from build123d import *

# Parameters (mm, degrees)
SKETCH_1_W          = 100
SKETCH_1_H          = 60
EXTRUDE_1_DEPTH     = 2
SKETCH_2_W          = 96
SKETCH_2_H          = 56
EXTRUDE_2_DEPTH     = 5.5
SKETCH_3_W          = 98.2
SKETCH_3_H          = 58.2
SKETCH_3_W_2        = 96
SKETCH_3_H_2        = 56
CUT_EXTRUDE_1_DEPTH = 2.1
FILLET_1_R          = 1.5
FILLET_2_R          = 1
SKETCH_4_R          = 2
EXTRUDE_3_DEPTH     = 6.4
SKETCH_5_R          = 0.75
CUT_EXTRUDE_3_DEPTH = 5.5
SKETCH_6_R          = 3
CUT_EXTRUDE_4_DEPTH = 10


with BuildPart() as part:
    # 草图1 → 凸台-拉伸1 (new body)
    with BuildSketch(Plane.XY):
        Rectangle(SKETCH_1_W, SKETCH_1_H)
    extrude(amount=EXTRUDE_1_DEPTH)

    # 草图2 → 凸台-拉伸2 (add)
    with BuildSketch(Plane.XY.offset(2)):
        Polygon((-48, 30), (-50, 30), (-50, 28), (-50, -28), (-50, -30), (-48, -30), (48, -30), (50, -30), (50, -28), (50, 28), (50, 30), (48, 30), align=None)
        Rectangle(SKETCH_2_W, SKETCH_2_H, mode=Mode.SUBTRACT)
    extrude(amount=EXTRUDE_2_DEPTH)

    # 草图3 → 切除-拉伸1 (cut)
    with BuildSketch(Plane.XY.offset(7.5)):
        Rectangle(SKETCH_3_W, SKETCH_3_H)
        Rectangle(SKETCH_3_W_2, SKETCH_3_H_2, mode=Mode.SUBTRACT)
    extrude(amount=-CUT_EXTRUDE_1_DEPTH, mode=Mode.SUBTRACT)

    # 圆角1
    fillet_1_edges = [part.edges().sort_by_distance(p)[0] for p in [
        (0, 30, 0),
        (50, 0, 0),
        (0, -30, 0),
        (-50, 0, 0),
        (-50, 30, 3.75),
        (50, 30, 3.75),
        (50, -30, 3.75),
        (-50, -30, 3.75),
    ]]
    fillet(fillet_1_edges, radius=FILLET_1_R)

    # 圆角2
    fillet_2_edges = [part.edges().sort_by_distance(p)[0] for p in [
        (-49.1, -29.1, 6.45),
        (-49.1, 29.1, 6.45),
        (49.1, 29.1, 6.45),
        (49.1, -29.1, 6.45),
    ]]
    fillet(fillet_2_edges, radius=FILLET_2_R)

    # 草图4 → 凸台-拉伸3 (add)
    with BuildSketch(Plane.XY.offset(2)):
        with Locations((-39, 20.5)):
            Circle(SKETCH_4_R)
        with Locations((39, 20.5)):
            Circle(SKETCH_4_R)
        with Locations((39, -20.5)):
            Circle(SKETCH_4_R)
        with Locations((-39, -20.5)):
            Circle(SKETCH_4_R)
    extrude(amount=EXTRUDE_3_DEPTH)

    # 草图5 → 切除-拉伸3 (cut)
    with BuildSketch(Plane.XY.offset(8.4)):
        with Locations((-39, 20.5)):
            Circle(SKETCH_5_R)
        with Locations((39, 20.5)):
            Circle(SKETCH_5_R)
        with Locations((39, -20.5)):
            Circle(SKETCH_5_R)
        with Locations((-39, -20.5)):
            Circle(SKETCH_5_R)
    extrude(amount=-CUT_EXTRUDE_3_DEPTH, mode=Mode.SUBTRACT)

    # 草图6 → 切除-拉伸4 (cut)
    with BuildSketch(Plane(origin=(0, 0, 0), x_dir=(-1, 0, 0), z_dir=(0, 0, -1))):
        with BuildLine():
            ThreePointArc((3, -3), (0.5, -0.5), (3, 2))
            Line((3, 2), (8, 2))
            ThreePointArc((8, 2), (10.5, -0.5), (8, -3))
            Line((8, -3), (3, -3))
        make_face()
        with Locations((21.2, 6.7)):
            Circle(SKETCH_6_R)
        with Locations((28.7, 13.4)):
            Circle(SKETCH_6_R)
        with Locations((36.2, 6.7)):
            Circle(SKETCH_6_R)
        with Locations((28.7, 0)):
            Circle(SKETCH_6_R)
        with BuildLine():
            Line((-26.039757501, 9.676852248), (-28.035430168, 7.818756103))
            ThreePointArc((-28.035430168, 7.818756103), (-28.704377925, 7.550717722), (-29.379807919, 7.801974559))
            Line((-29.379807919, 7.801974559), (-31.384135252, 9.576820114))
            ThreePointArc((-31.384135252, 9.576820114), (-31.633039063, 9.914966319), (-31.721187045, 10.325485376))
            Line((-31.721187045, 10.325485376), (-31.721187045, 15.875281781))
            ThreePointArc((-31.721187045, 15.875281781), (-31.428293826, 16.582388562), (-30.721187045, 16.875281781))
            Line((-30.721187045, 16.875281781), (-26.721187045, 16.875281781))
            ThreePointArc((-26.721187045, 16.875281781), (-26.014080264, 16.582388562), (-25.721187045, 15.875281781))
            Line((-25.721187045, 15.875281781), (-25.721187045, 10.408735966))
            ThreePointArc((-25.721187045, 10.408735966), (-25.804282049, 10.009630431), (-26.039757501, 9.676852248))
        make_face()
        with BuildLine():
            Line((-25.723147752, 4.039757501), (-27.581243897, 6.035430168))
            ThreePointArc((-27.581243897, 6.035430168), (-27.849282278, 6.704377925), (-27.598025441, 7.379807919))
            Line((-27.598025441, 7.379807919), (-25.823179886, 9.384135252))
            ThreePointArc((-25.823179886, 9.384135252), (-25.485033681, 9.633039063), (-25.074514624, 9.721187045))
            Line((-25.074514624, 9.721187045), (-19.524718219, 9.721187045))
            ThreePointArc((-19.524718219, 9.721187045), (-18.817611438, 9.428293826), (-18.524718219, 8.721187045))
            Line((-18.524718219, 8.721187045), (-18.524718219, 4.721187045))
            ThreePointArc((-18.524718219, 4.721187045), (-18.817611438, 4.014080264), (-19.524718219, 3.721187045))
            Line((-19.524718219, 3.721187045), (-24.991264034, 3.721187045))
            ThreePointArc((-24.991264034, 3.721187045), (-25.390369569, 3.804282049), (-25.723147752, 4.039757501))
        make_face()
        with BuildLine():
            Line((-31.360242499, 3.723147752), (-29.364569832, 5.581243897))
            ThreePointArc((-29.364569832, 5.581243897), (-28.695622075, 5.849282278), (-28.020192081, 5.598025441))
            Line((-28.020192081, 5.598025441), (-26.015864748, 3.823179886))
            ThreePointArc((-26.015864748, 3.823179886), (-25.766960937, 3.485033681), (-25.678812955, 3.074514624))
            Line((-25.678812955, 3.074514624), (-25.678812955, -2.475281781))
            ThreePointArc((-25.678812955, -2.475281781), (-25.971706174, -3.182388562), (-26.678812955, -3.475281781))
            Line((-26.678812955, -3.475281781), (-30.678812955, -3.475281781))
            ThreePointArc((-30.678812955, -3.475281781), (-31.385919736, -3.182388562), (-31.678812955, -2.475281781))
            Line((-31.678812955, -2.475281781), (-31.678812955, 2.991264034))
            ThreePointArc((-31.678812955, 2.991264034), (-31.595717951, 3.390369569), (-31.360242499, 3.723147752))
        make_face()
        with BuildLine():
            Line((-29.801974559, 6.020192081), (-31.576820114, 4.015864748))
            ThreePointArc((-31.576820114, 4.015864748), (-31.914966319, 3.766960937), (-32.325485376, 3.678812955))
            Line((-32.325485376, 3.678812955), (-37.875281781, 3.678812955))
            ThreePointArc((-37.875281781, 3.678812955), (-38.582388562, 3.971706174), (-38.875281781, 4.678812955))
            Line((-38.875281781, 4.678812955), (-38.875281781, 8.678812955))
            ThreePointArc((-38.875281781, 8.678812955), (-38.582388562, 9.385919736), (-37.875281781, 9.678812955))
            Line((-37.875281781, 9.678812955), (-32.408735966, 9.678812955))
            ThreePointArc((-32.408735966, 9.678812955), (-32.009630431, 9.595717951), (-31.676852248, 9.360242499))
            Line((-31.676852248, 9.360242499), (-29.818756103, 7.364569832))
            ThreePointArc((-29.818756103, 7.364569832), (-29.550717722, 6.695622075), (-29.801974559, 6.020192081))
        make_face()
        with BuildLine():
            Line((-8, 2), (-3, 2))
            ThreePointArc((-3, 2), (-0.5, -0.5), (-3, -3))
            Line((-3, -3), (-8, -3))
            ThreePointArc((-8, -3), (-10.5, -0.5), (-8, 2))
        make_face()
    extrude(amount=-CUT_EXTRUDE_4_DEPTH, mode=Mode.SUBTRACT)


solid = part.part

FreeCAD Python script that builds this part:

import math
import FreeCAD as App
import Part
import Sketcher
from FreeCAD import Vector
Q = App.Units.Quantity


def edges_at(feature, points):
    """Names of the edges that pass closest to the given points."""
    edges = feature.Shape.Edges
    near = lambda p: min(range(len(edges)), key=lambda i: edges[i].distToShape(Part.Vertex(*p))[0])
    return sorted({f"Edge{near(p) + 1}" for p in points})

doc = App.newDocument("Part")
body = doc.addObject("PartDesign::Body", "Body")

# Sketch on XY plane
sketch1 = body.newObject("Sketcher::SketchObject", "Sketch")
sketch1.AttachmentSupport = (doc.getObject("XY_Plane"), [""])
sketch1.MapMode = "FlatFace"
sketch1.addGeometry([
    Part.LineSegment(Vector(-50, 30, 0), Vector(-50, -30, 0)),
    Part.LineSegment(Vector(-50, -30, 0), Vector(50, -30, 0)),
    Part.LineSegment(Vector(50, -30, 0), Vector(50, 30, 0)),
    Part.LineSegment(Vector(50, 30, 0), Vector(-50, 30, 0)),
], False)
sketch1.addConstraint([
    Sketcher.Constraint("Coincident", 0, 2, 1, 1),
    Sketcher.Constraint("Coincident", 1, 2, 2, 1),
    Sketcher.Constraint("Coincident", 2, 2, 3, 1),
    Sketcher.Constraint("Coincident", 3, 2, 0, 1),
    Sketcher.Constraint("Vertical", 0),
    Sketcher.Constraint("Horizontal", 1),
    Sketcher.Constraint("Vertical", 2),
    Sketcher.Constraint("Horizontal", 3),
    Sketcher.Constraint("Symmetric", 0, 2, 2, 2, -1, 1),
    Sketcher.Constraint("DistanceX", 1, 1, 1, 2, Q("100 mm")),
    Sketcher.Constraint("DistanceY", 0, 2, 0, 1, Q("60 mm")),
])
pad1 = body.newObject("PartDesign::Pad", "Pad")
pad1.Profile = sketch1
pad1.Length = 2

# Sketch on XY plane
sketch2 = body.newObject("Sketcher::SketchObject", "Sketch001")
sketch2.AttachmentSupport = (doc.getObject("XY_Plane"), [""])
sketch2.MapMode = "FlatFace"
sketch2.AttachmentOffset = App.Placement(Vector(0, 0, 2), App.Rotation())
sketch2.addGeometry([
    Part.LineSegment(Vector(-50, 30, 0), Vector(-50, -30, 0)),  # 0
    Part.LineSegment(Vector(-50, -30, 0), Vector(50, -30, 0)),  # 1
    Part.LineSegment(Vector(50, -30, 0), Vector(50, 30, 0)),  # 2
    Part.LineSegment(Vector(50, 30, 0), Vector(-50, 30, 0)),  # 3
    Part.LineSegment(Vector(48, -28, 0), Vector(-48, -28, 0)),  # 4
    Part.LineSegment(Vector(-48, -28, 0), Vector(-48, 28, 0)),  # 5
    Part.LineSegment(Vector(-48, 28, 0), Vector(48, 28, 0)),  # 6
    Part.LineSegment(Vector(48, 28, 0), Vector(48, -28, 0)),  # 7
], False)
sketch2.addConstraint([
    Sketcher.Constraint("Coincident", 0, 2, 1, 1),
    Sketcher.Constraint("Coincident", 1, 2, 2, 1),
    Sketcher.Constraint("Coincident", 2, 2, 3, 1),
    Sketcher.Constraint("Coincident", 3, 2, 0, 1),
    Sketcher.Constraint("Coincident", 4, 2, 5, 1),
    Sketcher.Constraint("Coincident", 5, 2, 6, 1),
    Sketcher.Constraint("Coincident", 6, 2, 7, 1),
    Sketcher.Constraint("Coincident", 7, 2, 4, 1),
    Sketcher.Constraint("Vertical", 0),
    Sketcher.Constraint("Horizontal", 1),
    Sketcher.Constraint("Vertical", 2),
    Sketcher.Constraint("Horizontal", 3),
    Sketcher.Constraint("Horizontal", 4),
    Sketcher.Constraint("Vertical", 5),
    Sketcher.Constraint("Horizontal", 6),
    Sketcher.Constraint("Vertical", 7),
    Sketcher.Constraint("Symmetric", 0, 2, 2, 2, -1, 1),
    Sketcher.Constraint("Symmetric", 4, 2, 6, 2, -1, 1),
    Sketcher.Constraint("DistanceX", 1, 1, 1, 2, Q("100 mm")),
    Sketcher.Constraint("DistanceX", 4, 2, 4, 1, Q("96 mm")),
    Sketcher.Constraint("DistanceY", 0, 2, 0, 1, Q("60 mm")),
    Sketcher.Constraint("DistanceY", 5, 1, 5, 2, Q("56 mm")),
])
pad2 = body.newObject("PartDesign::Pad", "Pad001")
pad2.Profile = sketch2
pad2.Length = 5.5

# Sketch on XY plane
sketch3 = body.newObject("Sketcher::SketchObject", "Sketch002")
sketch3.AttachmentSupport = (doc.getObject("XY_Plane"), [""])
sketch3.MapMode = "FlatFace"
sketch3.AttachmentOffset = App.Placement(Vector(0, 0, 7.5), App.Rotation())
sketch3.addGeometry([
    Part.LineSegment(Vector(-49, 29, 0), Vector(-49, -29, 0)),  # 0
    Part.LineSegment(Vector(-49, -29, 0), Vector(49, -29, 0)),  # 1
    Part.LineSegment(Vector(49, -29, 0), Vector(49, 29, 0)),  # 2
    Part.LineSegment(Vector(49, 29, 0), Vector(-49, 29, 0)),  # 3
    Part.LineSegment(Vector(48, -28, 0), Vector(-48, -28, 0)),  # 4
    Part.LineSegment(Vector(-48, -28, 0), Vector(-48, 28, 0)),  # 5
    Part.LineSegment(Vector(-48, 28, 0), Vector(48, 28, 0)),  # 6
    Part.LineSegment(Vector(48, 28, 0), Vector(48, -28, 0)),  # 7
], False)
sketch3.addConstraint([
    Sketcher.Constraint("Coincident", 0, 2, 1, 1),
    Sketcher.Constraint("Coincident", 1, 2, 2, 1),
    Sketcher.Constraint("Coincident", 2, 2, 3, 1),
    Sketcher.Constraint("Coincident", 3, 2, 0, 1),
    Sketcher.Constraint("Coincident", 4, 2, 5, 1),
    Sketcher.Constraint("Coincident", 5, 2, 6, 1),
    Sketcher.Constraint("Coincident", 6, 2, 7, 1),
    Sketcher.Constraint("Coincident", 7, 2, 4, 1),
    Sketcher.Constraint("Vertical", 0),
    Sketcher.Constraint("Horizontal", 1),
    Sketcher.Constraint("Vertical", 2),
    Sketcher.Constraint("Horizontal", 3),
    Sketcher.Constraint("Horizontal", 4),
    Sketcher.Constraint("Vertical", 5),
    Sketcher.Constraint("Horizontal", 6),
    Sketcher.Constraint("Vertical", 7),
    Sketcher.Constraint("Symmetric", 0, 2, 2, 2, -1, 1),
    Sketcher.Constraint("Symmetric", 4, 2, 6, 2, -1, 1),
    Sketcher.Constraint("DistanceX", 4, 2, 4, 1, Q("96 mm")),
    Sketcher.Constraint("DistanceY", 5, 1, 5, 2, Q("56 mm")),
    Sketcher.Constraint("DistanceX", 1, 1, 1, 2, Q("98.2 mm")),
    Sketcher.Constraint("DistanceY", 0, 2, 0, 1, Q("58.2 mm")),
])
pocket1 = body.newObject("PartDesign::Pocket", "Pocket")
pocket1.Profile = sketch3
pocket1.Length = 2.1
doc.recompute()

fillet = body.newObject("PartDesign::Fillet", "Fillet")
fillet.Base = (pocket1, edges_at(pocket1, [
    (0, 30, 0),
    (50, 0, 0),
    (0, -30, 0),
    (-50, 0, 0),
    (-50, 30, 3.75),
    (50, 30, 3.75),
    (50, -30, 3.75),
    (-50, -30, 3.75),
]))
fillet.Radius = 1.5
doc.recompute()

fillet2 = body.newObject("PartDesign::Fillet", "Fillet001")
fillet2.Base = (fillet, edges_at(fillet, [
    (-49.1, -29.1, 6.45),
    (-49.1, 29.1, 6.45),
    (49.1, 29.1, 6.45),
    (49.1, -29.1, 6.45),
]))
fillet2.Radius = 1

# Sketch on XY plane
sketch4 = body.newObject("Sketcher::SketchObject", "Sketch003")
sketch4.AttachmentSupport = (doc.getObject("XY_Plane"), [""])
sketch4.MapMode = "FlatFace"
sketch4.AttachmentOffset = App.Placement(Vector(0, 0, 2), App.Rotation())
sketch4.addGeometry([
    Part.Circle(Vector(-39, 20.5, 0), Vector(0, 0, 1), 2),
    Part.Circle(Vector(39, 20.5, 0), Vector(0, 0, 1), 2),
    Part.Circle(Vector(39, -20.5, 0), Vector(0, 0, 1), 2),
    Part.Circle(Vector(-39, -20.5, 0), Vector(0, 0, 1), 2),
], False)
sketch4.addConstraint([
    Sketcher.Constraint("Equal", 0, 1),
    Sketcher.Constraint("Equal", 1, 2),
    Sketcher.Constraint("Equal", 2, 3),
    Sketcher.Constraint("Symmetric", 0, 3, 2, 3, -1, 1),
    Sketcher.Constraint("Symmetric", 1, 3, 3, 3, -1, 1),
    Sketcher.Constraint("Symmetric", 0, 3, 1, 3, -2),
    Sketcher.Constraint("Diameter", 0, Q("4 mm")),
    Sketcher.Constraint("DistanceX", 0, 3, -1, 1, Q("39 mm")),
    Sketcher.Constraint("DistanceY", 2, 3, 1, 3, Q("41 mm")),
])
pad3 = body.newObject("PartDesign::Pad", "Pad002")
pad3.Profile = sketch4
pad3.Length = 6.4

# Sketch on XY plane
sketch5 = body.newObject("Sketcher::SketchObject", "Sketch004")
sketch5.AttachmentSupport = (doc.getObject("XY_Plane"), [""])
sketch5.MapMode = "FlatFace"
sketch5.AttachmentOffset = App.Placement(Vector(0, 0, 8.4), App.Rotation())
sketch5.addGeometry([
    Part.Circle(Vector(-39, 20.5, 0), Vector(0, 0, 1), 0.8),
    Part.Circle(Vector(39, 20.5, 0), Vector(0, 0, 1), 0.8),
    Part.Circle(Vector(39, -20.5, 0), Vector(0, 0, 1), 0.8),
    Part.Circle(Vector(-39, -20.5, 0), Vector(0, 0, 1), 0.8),
], False)
sketch5.addConstraint([
    Sketcher.Constraint("Equal", 0, 1),
    Sketcher.Constraint("Equal", 1, 2),
    Sketcher.Constraint("Equal", 2, 3),
    Sketcher.Constraint("Symmetric", 0, 3, 2, 3, -1, 1),
    Sketcher.Constraint("Symmetric", 1, 3, 3, 3, -1, 1),
    Sketcher.Constraint("Symmetric", 0, 3, 1, 3, -2),
    Sketcher.Constraint("Diameter", 0, Q("1.5 mm")),
    Sketcher.Constraint("DistanceX", 0, 3, -1, 1, Q("39 mm")),
    Sketcher.Constraint("DistanceY", 2, 3, 1, 3, Q("41 mm")),
])
pocket2 = body.newObject("PartDesign::Pocket", "Pocket001")
pocket2.Profile = sketch5
pocket2.Length = 5.5

# Sketch on XY plane
sketch6 = body.newObject("Sketcher::SketchObject", "Sketch005")
sketch6.AttachmentSupport = (doc.getObject("XY_Plane"), [""])
sketch6.MapMode = "FlatFace"
sketch6.addGeometry([
    Part.ArcOfCircle(Part.Circle(Vector(-3, -0.5, 0), Vector(0, 0, 1), 2.5), math.radians(-90), math.radians(90)),  # 0
    Part.LineSegment(Vector(-3, -3, 0), Vector(-8, -3, 0)),  # 1
    Part.ArcOfCircle(Part.Circle(Vector(-8, -0.5, 0), Vector(0, 0, 1), 2.5), math.radians(90), math.radians(270)),  # 2
    Part.LineSegment(Vector(-8, 2, 0), Vector(-3, 2, 0)),  # 3
    Part.Circle(Vector(-21.2, 6.7, 0), Vector(0, 0, 1), 3),  # 4
    Part.Circle(Vector(-28.7, 13.4, 0), Vector(0, 0, 1), 3),  # 5
    Part.Circle(Vector(-36.2, 6.7, 0), Vector(0, 0, 1), 3),  # 6
    Part.Circle(Vector(-28.7, 0, 0), Vector(0, 0, 1), 3),  # 7
    Part.LineSegment(Vector(28, 7.8, 0), Vector(26, 9.7, 0)),  # 8
    Part.ArcOfCircle(Part.Circle(Vector(26.7, 10.4, 0), Vector(0, 0, 1), 1), math.radians(-180), math.radians(-133)),  # 9
    Part.LineSegment(Vector(25.7, 10.4, 0), Vector(25.7, 15.9, 0)),  # 10
    Part.ArcOfCircle(Part.Circle(Vector(26.7, 15.9, 0), Vector(0, 0, 1), 1), math.radians(90), math.radians(180)),  # 11
    Part.LineSegment(Vector(26.7, 16.9, 0), Vector(30.7, 16.9, 0)),  # 12
    Part.ArcOfCircle(Part.Circle(Vector(30.7, 15.9, 0), Vector(0, 0, 1), 1), math.radians(0), math.radians(90)),  # 13
    Part.LineSegment(Vector(31.7, 15.9, 0), Vector(31.7, 10.3, 0)),  # 14
    Part.ArcOfCircle(Part.Circle(Vector(30.7, 10.3, 0), Vector(0, 0, 1), 1), math.radians(-48), math.radians(0)),  # 15
    Part.LineSegment(Vector(31.4, 9.6, 0), Vector(29.4, 7.8, 0)),  # 16
    Part.ArcOfCircle(Part.Circle(Vector(28.7, 8.6, 0), Vector(0, 0, 1), 1), math.radians(-133), math.radians(-48)),  # 17
    Part.LineSegment(Vector(27.6, 6, 0), Vector(25.7, 4, 0)),  # 18
    Part.ArcOfCircle(Part.Circle(Vector(25, 4.7, 0), Vector(0, 0, 1), 1), math.radians(-90), math.radians(-43)),  # 19
    Part.LineSegment(Vector(25, 3.7, 0), Vector(19.5, 3.7, 0)),  # 20
    Part.ArcOfCircle(Part.Circle(Vector(19.5, 4.7, 0), Vector(0, 0, 1), 1), math.radians(-180), math.radians(-90)),  # 21
    Part.LineSegment(Vector(18.5, 4.7, 0), Vector(18.5, 8.7, 0)),  # 22
    Part.ArcOfCircle(Part.Circle(Vector(19.5, 8.7, 0), Vector(0, 0, 1), 1), math.radians(90), math.radians(180)),  # 23
    Part.LineSegment(Vector(19.5, 9.7, 0), Vector(25.1, 9.7, 0)),  # 24
    Part.ArcOfCircle(Part.Circle(Vector(25.1, 8.7, 0), Vector(0, 0, 1), 1), math.radians(42), math.radians(90)),  # 25
    Part.LineSegment(Vector(25.8, 9.4, 0), Vector(27.6, 7.4, 0)),  # 26
    Part.ArcOfCircle(Part.Circle(Vector(26.8, 6.7, 0), Vector(0, 0, 1), 1), math.radians(-43), math.radians(42)),  # 27
    Part.LineSegment(Vector(29.4, 5.6, 0), Vector(31.4, 3.7, 0)),  # 28
    Part.ArcOfCircle(Part.Circle(Vector(30.7, 3, 0), Vector(0, 0, 1), 1), math.radians(0), math.radians(47)),  # 29
    Part.LineSegment(Vector(31.7, 3, 0), Vector(31.7, -2.5, 0)),  # 30
    Part.ArcOfCircle(Part.Circle(Vector(30.7, -2.5, 0), Vector(0, 0, 1), 1), math.radians(-90), math.radians(0)),  # 31
    Part.LineSegment(Vector(30.7, -3.5, 0), Vector(26.7, -3.5, 0)),  # 32
    Part.ArcOfCircle(Part.Circle(Vector(26.7, -2.5, 0), Vector(0, 0, 1), 1), math.radians(-180), math.radians(-90)),  # 33
    Part.LineSegment(Vector(25.7, -2.5, 0), Vector(25.7, 3.1, 0)),  # 34
    Part.ArcOfCircle(Part.Circle(Vector(26.7, 3.1, 0), Vector(0, 0, 1), 1), math.radians(132), math.radians(180)),  # 35
    Part.LineSegment(Vector(26, 3.8, 0), Vector(28, 5.6, 0)),  # 36
    Part.ArcOfCircle(Part.Circle(Vector(28.7, 4.8, 0), Vector(0, 0, 1), 1), math.radians(47), math.radians(132)),  # 37
    Part.LineSegment(Vector(31.6, 4, 0), Vector(29.8, 6, 0)),  # 38
    Part.ArcOfCircle(Part.Circle(Vector(30.6, 6.7, 0), Vector(0, 0, 1), 1), math.radians(137), math.radians(222)),  # 39
    Part.LineSegment(Vector(29.8, 7.4, 0), Vector(31.7, 9.4, 0)),  # 40
    Part.ArcOfCircle(Part.Circle(Vector(32.4, 8.7, 0), Vector(0, 0, 1), 1), math.radians(90), math.radians(137)),  # 41
    Part.LineSegment(Vector(32.4, 9.7, 0), Vector(37.9, 9.7, 0)),  # 42
    Part.ArcOfCircle(Part.Circle(Vector(37.9, 8.7, 0), Vector(0, 0, 1), 1), math.radians(0), math.radians(90)),  # 43
    Part.LineSegment(Vector(38.9, 8.7, 0), Vector(38.9, 4.7, 0)),  # 44
    Part.ArcOfCircle(Part.Circle(Vector(37.9, 4.7, 0), Vector(0, 0, 1), 1), math.radians(-90), math.radians(0)),  # 45
    Part.LineSegment(Vector(37.9, 3.7, 0), Vector(32.3, 3.7, 0)),  # 46
    Part.ArcOfCircle(Part.Circle(Vector(32.3, 4.7, 0), Vector(0, 0, 1), 1), math.radians(-138), math.radians(-90)),  # 47
    Part.LineSegment(Vector(3, 2, 0), Vector(8, 2, 0)),  # 48
    Part.ArcOfCircle(Part.Circle(Vector(8, -0.5, 0), Vector(0, 0, 1), 2.5), math.radians(-90), math.radians(90)),  # 49
    Part.LineSegment(Vector(8, -3, 0), Vector(3, -3, 0)),  # 50
    Part.ArcOfCircle(Part.Circle(Vector(3, -0.5, 0), Vector(0, 0, 1), 2.5), math.radians(90), math.radians(270)),  # 51
], False)
sketch6.addConstraint([
    Sketcher.Constraint("Tangent", 0, 1, 1, 1),
    Sketcher.Constraint("Tangent", 1, 2, 2, 2),
    Sketcher.Constraint("Tangent", 2, 1, 3, 1),
    Sketcher.Constraint("Tangent", 3, 2, 0, 2),
    Sketcher.Constraint("Tangent", 8, 2, 9, 2),
    Sketcher.Constraint("Tangent", 9, 1, 10, 1),
    Sketcher.Constraint("Tangent", 10, 2, 11, 2),
    Sketcher.Constraint("Tangent", 11, 1, 12, 1),
    Sketcher.Constraint("Tangent", 12, 2, 13, 2),
    Sketcher.Constraint("Tangent", 13, 1, 14, 1),
    Sketcher.Constraint("Tangent", 14, 2, 15, 2),
    Sketcher.Constraint("Tangent", 15, 1, 16, 1),
    Sketcher.Constraint("Tangent", 16, 2, 17, 2),
    Sketcher.Constraint("Tangent", 17, 1, 8, 1),
    Sketcher.Constraint("Tangent", 18, 2, 19, 2),
    Sketcher.Constraint("Tangent", 19, 1, 20, 1),
    Sketcher.Constraint("Tangent", 20, 2, 21, 2),
    Sketcher.Constraint("Tangent", 21, 1, 22, 1),
    Sketcher.Constraint("Tangent", 22, 2, 23, 2),
    Sketcher.Constraint("Tangent", 23, 1, 24, 1),
    Sketcher.Constraint("Tangent", 24, 2, 25, 2),
    Sketcher.Constraint("Tangent", 25, 1, 26, 1),
    Sketcher.Constraint("Tangent", 26, 2, 27, 2),
    Sketcher.Constraint("Tangent", 27, 1, 18, 1),
    Sketcher.Constraint("Tangent", 28, 2, 29, 2),
    Sketcher.Constraint("Tangent", 29, 1, 30, 1),
    Sketcher.Constraint("Tangent", 30, 2, 31, 2),
    Sketcher.Constraint("Tangent", 31, 1, 32, 1),
    Sketcher.Constraint("Tangent", 32, 2, 33, 2),
    Sketcher.Constraint("Tangent", 33, 1, 34, 1),
    Sketcher.Constraint("Tangent", 34, 2, 35, 2),
    Sketcher.Constraint("Tangent", 35, 1, 36, 1),
    Sketcher.Constraint("Tangent", 36, 2, 37, 2),
    Sketcher.Constraint("Tangent", 37, 1, 28, 1),
    Sketcher.Constraint("Tangent", 38, 2, 39, 2),
    Sketcher.Constraint("Tangent", 39, 1, 40, 1),
    Sketcher.Constraint("Tangent", 40, 2, 41, 2),
    Sketcher.Constraint("Tangent", 41, 1, 42, 1),
    Sketcher.Constraint("Tangent", 42, 2, 43, 2),
    Sketcher.Constraint("Tangent", 43, 1, 44, 1),
    Sketcher.Constraint("Tangent", 44, 2, 45, 2),
    Sketcher.Constraint("Tangent", 45, 1, 46, 1),
    Sketcher.Constraint("Tangent", 46, 2, 47, 2),
    Sketcher.Constraint("Tangent", 47, 1, 38, 1),
    Sketcher.Constraint("Tangent", 48, 2, 49, 2),
    Sketcher.Constraint("Tangent", 49, 1, 50, 1),
    Sketcher.Constraint("Tangent", 50, 2, 51, 2),
    Sketcher.Constraint("Tangent", 51, 1, 48, 1),
    Sketcher.Constraint("Horizontal", 1),
    Sketcher.Constraint("Horizontal", 3),
    Sketcher.Constraint("Vertical", 10),
    Sketcher.Constraint("Horizontal", 12),
    Sketcher.Constraint("Vertical", 14),
    Sketcher.Constraint("Horizontal", 20),
    Sketcher.Constraint("Vertical", 22),
    Sketcher.Constraint("Horizontal", 24),
    Sketcher.Constraint("Vertical", 30),
    Sketcher.Constraint("Horizontal", 32),
    Sketcher.Constraint("Vertical", 34),
    Sketcher.Constraint("Horizontal", 42),
    Sketcher.Constraint("Vertical", 44),
    Sketcher.Constraint("Horizontal", 46),
    Sketcher.Constraint("Horizontal", 48),
    Sketcher.Constraint("Horizontal", 50),
    Sketcher.Constraint("Equal", 4, 5),
    Sketcher.Constraint("Equal", 5, 6),
    Sketcher.Constraint("Equal", 6, 7),
    Sketcher.Constraint("Equal", 9, 11),
    Sketcher.Constraint("Equal", 11, 13),
    Sketcher.Constraint("Equal", 13, 15),
    Sketcher.Constraint("Equal", 15, 17),
    Sketcher.Constraint("Equal", 17, 19),
    Sketcher.Constraint("Equal", 19, 21),
    Sketcher.Constraint("Equal", 21, 23),
    Sketcher.Constraint("Equal", 23, 25),
    Sketcher.Constraint("Equal", 25, 27),
    Sketcher.Constraint("Equal", 27, 29),
    Sketcher.Constraint("Equal", 29, 31),
    Sketcher.Constraint("Equal", 31, 33),
    Sketcher.Constraint("Equal", 33, 35),
    Sketcher.Constraint("Equal", 35, 37),
    Sketcher.Constraint("Equal", 37, 39),
    Sketcher.Constraint("Equal", 39, 41),
    Sketcher.Constraint("Equal", 41, 43),
    Sketcher.Constraint("Equal", 43, 45),
    Sketcher.Constraint("Equal", 45, 47),
    Sketcher.Constraint("Equal", 2, 49),
    Sketcher.Constraint("Symmetric", 2, 3, 49, 3, -2),
    Sketcher.Constraint("PointOnObject", 7, 3, -1),
    Sketcher.Constraint("Perpendicular", 8, 18),
    Sketcher.Constraint("Perpendicular", 16, 26),
    Sketcher.Constraint("Perpendicular", 18, 28),
    Sketcher.Constraint("Perpendicular", 26, 36),
    Sketcher.Constraint("Perpendicular", 36, 38),
    Sketcher.Constraint("Perpendicular", 28, 40),
    Sketcher.Constraint("Horizontal", 4, 3, 6, 3),
    Sketcher.Constraint("Vertical", 5, 3, 7, 3),
    Sketcher.Constraint("Equal", 12, 32),
    Sketcher.Constraint("Equal", 20, 42),
    Sketcher.Constraint("Equal", 24, 46),
    Sketcher.Constraint("Equal", 3, 48),
    Sketcher.Constraint("Equal", 42, 10),
    Sketcher.Constraint("Equal", 46, 14),
    Sketcher.Constraint("Equal", 32, 22),
    Sketcher.Constraint("Equal", 10, 30),
    Sketcher.Constraint("Equal", 14, 34),
    Sketcher.Constraint("Equal", 22, 44),
    Sketcher.Constraint("Diameter", 4, Q("6 mm")),
    Sketcher.Constraint("Radius", 9, Q("1 mm")),
    Sketcher.Constraint("Radius", 0, Q("2.5 mm")),
    Sketcher.Constraint("DistanceX", 1, 2, 1, 1, Q("5 mm")),
    Sketcher.Constraint("DistanceX", 12, 1, 12, 2, Q("4 mm")),
    Sketcher.Constraint("DistanceX", 0, 3, -1, 1, Q("3 mm")),
    Sketcher.Constraint("DistanceY", 0, 1, -1, 1, Q("3 mm")),
    Sketcher.Constraint("DistanceX", 4, 3, -1, 1, Q("21.2 mm")),
    Sketcher.Constraint("DistanceY", -1, 1, 4, 3, Q("6.7 mm")),
    Sketcher.Constraint("DistanceX", 5, 3, -1, 1, Q("28.7 mm")),
    Sketcher.Constraint("DistanceY", -1, 1, 5, 3, Q("13.4 mm")),
    Sketcher.Constraint("DistanceX", 6, 3, -1, 1, Q("36.2 mm")),
    Sketcher.Constraint("Distance", 16, Q("2.677201 mm")),
    Sketcher.Constraint("Distance", 8, Q("2.726762 mm")),
    Sketcher.Constraint("DistanceX", 20, 2, 20, 1, Q("5.466546 mm")),
    Sketcher.Constraint("DistanceX", 24, 1, 24, 2, Q("5.549796 mm")),
    Sketcher.Constraint("DistanceY", -1, 1, 11, 3, Q("15.875282 mm")),
    Sketcher.Constraint("DistanceX", -1, 1, 17, 3, Q("28.71686 mm")),
    Sketcher.Constraint("DistanceX", -1, 1, 21, 3, Q("19.524718 mm")),
    Sketcher.Constraint("DistanceY", -1, 1, 27, 3, Q("6.71686 mm")),
    Sketcher.Constraint("DistanceY", 31, 3, -1, 1, Q("2.475282 mm")),
    Sketcher.Constraint("DistanceX", -1, 1, 37, 3, Q("28.68314 mm")),
    Sketcher.Constraint("DistanceX", -1, 1, 39, 3, Q("30.55064 mm")),
    Sketcher.Constraint("DistanceY", -1, 1, 39, 3, Q("6.68314 mm")),
])
pocket3 = body.newObject("PartDesign::Pocket", "Pocket002")
pocket3.Profile = sketch6
pocket3.Length = 10
pocket3.Reversed = True

doc.recompute()
